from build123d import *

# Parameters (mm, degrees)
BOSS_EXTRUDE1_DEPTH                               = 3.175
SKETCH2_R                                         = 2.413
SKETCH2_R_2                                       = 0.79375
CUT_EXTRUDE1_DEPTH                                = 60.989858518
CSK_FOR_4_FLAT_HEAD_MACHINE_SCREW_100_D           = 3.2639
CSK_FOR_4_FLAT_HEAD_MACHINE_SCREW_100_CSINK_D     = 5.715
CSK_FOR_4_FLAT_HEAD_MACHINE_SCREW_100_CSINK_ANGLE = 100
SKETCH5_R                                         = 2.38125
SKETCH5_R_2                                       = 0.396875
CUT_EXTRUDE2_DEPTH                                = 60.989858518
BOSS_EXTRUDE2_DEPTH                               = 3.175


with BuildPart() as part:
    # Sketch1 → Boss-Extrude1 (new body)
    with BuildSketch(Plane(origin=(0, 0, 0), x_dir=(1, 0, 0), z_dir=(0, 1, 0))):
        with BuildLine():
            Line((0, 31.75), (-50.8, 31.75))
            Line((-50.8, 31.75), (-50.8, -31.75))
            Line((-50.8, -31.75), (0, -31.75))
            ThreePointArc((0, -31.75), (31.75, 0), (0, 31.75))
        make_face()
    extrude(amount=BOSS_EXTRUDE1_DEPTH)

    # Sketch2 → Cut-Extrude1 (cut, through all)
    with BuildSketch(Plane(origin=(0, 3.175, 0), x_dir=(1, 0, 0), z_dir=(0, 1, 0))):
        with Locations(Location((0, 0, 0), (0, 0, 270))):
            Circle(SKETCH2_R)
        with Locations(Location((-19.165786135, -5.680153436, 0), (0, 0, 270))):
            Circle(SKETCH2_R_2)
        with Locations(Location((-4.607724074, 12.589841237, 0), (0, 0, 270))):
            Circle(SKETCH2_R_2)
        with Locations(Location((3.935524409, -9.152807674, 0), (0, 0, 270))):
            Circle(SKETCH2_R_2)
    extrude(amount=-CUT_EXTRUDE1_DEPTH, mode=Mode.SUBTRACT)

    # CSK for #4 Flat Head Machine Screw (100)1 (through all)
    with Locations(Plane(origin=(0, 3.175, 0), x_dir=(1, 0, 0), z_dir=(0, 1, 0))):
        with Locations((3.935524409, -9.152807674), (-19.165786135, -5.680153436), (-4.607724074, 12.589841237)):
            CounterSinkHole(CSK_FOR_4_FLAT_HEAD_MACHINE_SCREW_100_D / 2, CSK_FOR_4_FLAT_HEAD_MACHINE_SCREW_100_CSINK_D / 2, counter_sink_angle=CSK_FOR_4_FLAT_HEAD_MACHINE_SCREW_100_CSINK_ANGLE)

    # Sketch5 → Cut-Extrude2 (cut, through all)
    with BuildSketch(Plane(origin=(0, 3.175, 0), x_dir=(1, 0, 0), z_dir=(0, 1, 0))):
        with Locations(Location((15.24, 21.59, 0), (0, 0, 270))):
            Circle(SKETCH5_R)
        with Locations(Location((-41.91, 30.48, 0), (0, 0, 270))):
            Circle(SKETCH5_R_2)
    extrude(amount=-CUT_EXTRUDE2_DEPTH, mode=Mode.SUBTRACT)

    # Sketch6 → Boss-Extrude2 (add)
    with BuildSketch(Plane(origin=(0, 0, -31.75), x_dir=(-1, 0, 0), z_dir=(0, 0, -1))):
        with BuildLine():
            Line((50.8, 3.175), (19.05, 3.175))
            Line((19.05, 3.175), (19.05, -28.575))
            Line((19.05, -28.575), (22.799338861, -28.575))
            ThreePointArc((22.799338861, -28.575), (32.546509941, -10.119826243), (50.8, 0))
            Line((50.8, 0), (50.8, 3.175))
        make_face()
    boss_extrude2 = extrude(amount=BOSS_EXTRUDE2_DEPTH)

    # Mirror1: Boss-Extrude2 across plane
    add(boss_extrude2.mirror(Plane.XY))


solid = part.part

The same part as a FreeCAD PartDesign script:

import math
import FreeCAD as App
import Part
import Sketcher
Q = App.Units.Quantity

doc = App.newDocument("Part")
body = doc.addObject("PartDesign::Body", "Body")

sketch1 = body.newObject("Sketcher::SketchObject", "Sketch")
sketch1.AttachmentSupport = (doc.getObject("XZ_Plane"), [""])
sketch1.MapMode = "FlatFace"
sketch1.addGeometry([
    Part.LineSegment(App.Vector(0, -31.75, 0), App.Vector(-50.8, -31.75, 0)),
    Part.LineSegment(App.Vector(-50.8, -31.75, 0), App.Vector(-50.8, 31.75, 0)),
    Part.LineSegment(App.Vector(-50.8, 31.75, 0), App.Vector(0, 31.75, 0)),
    Part.ArcOfCircle(Part.Circle(App.Vector(0, 0, 0), App.Vector(0, 0, 1), 31.75), math.radians(-90), math.radians(90)),
], False)
sketch1.addConstraint([
    Sketcher.Constraint("Coincident", 0, 2, 1, 1),
    Sketcher.Constraint("Coincident", 1, 2, 2, 1),
    Sketcher.Constraint("Tangent", 2, 2, 3, 2),
    Sketcher.Constraint("Tangent", 3, 1, 0, 1),
    Sketcher.Constraint("Horizontal", 0),
    Sketcher.Constraint("Vertical", 1),
    Sketcher.Constraint("Horizontal", 2),
    Sketcher.Constraint("Coincident", 3, 3, -1, 1),
    Sketcher.Constraint("DistanceX", 0, 2, 0, 1, Q("2 in")),
    Sketcher.Constraint("Radius", 3, Q("1.25 in")),
])
pad1 = body.newObject("PartDesign::Pad", "Pad")
pad1.Profile = sketch1
pad1.Length = Q("0.125 in")
pad1.Reversed = True

sketch2 = body.newObject("Sketcher::SketchObject", "Sketch001")
sketch2.AttachmentSupport = (doc.getObject("XZ_Plane"), [""])
sketch2.MapMode = "FlatFace"
sketch2.AttachmentOffset = App.Placement(App.Vector(0, 0, -0.125 * 25.4), App.Rotation())
sketch2.addGeometry([
    Part.Circle(App.Vector(0, 0, 0), App.Vector(0, 0, 1), 2.413),
    Part.Circle(App.Vector(-19.165786, 5.680153, 0), App.Vector(0, 0, 1), 0.79375),
    Part.Circle(App.Vector(-4.607724, -12.589841, 0), App.Vector(0, 0, 1), 0.79375),
    Part.Circle(App.Vector(3.935524, 9.152808, 0), App.Vector(0, 0, 1), 0.79375),
], False)
sketch2.addConstraint([
    Sketcher.Constraint("Coincident", 0, 3, -1, 1),
    Sketcher.Constraint("Equal", 1, 2),
    Sketcher.Constraint("Equal", 2, 3),
    Sketcher.Constraint("Diameter", 0, Q("0.19 in")),
    Sketcher.Constraint("Diameter", 1, Q("0.0625 in")),
    Sketcher.Constraint("DistanceY", 2, 3, -1, 1, 12.589841),
    Sketcher.Constraint("DistanceX", 1, 3, 3, 3, 23.101311),
    Sketcher.Constraint("DistanceX", 2, 3, 3, 3, 8.543248),
    Sketcher.Constraint("DistanceY", 2, 3, 3, 3, 21.742649),
    Sketcher.Constraint("DistanceX", 1, 3, -1, 1, 19.165786),
    Sketcher.Constraint("DistanceY", -1, 1, 1, 3, 5.680153),
])
pocket1 = body.newObject("PartDesign::Pocket", "Pocket")
pocket1.Profile = sketch2
pocket1.Type = "ThroughAll"
pocket1.Reversed = True

sketch3 = body.newObject("Sketcher::SketchObject", "Sketch002")
sketch3.AttachmentSupport = (doc.getObject("XZ_Plane"), [""])
sketch3.MapMode = "FlatFace"
sketch3.AttachmentOffset = App.Placement(App.Vector(0, 0, -0.125 * 25.4), App.Rotation())
sketch3.addGeometry([
    Part.Circle(App.Vector(3.935524, 9.152808, 0), App.Vector(0, 0, 1), 1.63195),
    Part.Circle(App.Vector(-19.165786, 5.680153, 0), App.Vector(0, 0, 1), 1.63195),
    Part.Circle(App.Vector(-4.607724, -12.589841, 0), App.Vector(0, 0, 1), 1.63195),
], False)
sketch3.addConstraint([
    Sketcher.Constraint("Equal", 0, 1),
    Sketcher.Constraint("Equal", 1, 2),
    Sketcher.Constraint("Diameter", 0, Q("0.1285 in")),
    Sketcher.Constraint("DistanceY", 2, 3, -1, 1, 12.589841),
    Sketcher.Constraint("DistanceX", 1, 3, 0, 3, 23.101311),
    Sketcher.Constraint("DistanceX", 2, 3, 0, 3, 8.543248),
    Sketcher.Constraint("DistanceY", 2, 3, 0, 3, 21.742649),
    Sketcher.Constraint("DistanceX", -1, 1, 0, 3, 3.935524),
    Sketcher.Constraint("DistanceY", -1, 1, 1, 3, 5.680153),
])
doc.recompute()
hole = body.newObject("PartDesign::Hole", "Hole")
hole.Profile = sketch3
hole.ThreadType = "None"
hole.Diameter = Q("0.1285 in")
hole.DepthType = "ThroughAll"
hole.HoleCutType = "Countersink"
hole.HoleCutDiameter = Q("0.225 in")
hole.HoleCutCountersinkAngle = 100
hole.Reversed = True

sketch4 = body.newObject("Sketcher::SketchObject", "Sketch003")
sketch4.AttachmentSupport = (doc.getObject("XZ_Plane"), [""])
sketch4.MapMode = "FlatFace"
sketch4.AttachmentOffset = App.Placement(App.Vector(0, 0, -0.125 * 25.4), App.Rotation())
sketch4.addGeometry([
    Part.Circle(App.Vector(15.24, -21.59, 0), App.Vector(0, 0, 1), 2.38125),
    Part.Circle(App.Vector(-41.91, -30.48, 0), App.Vector(0, 0, 1), 0.396875),
], False)
sketch4.addConstraint([
    Sketcher.Constraint("Diameter", 0, Q("0.1875 in")),
    Sketcher.Constraint("Diameter", 1, Q("0.03125 in")),
    Sketcher.Constraint("DistanceX", -1, 1, 0, 3, Q("0.6 in")),
    Sketcher.Constraint("DistanceY", 1, 3, -1, 1, Q("1.2 in")),
    Sketcher.Constraint("DistanceY", 0, 3, -1, 1, Q("0.85 in")),
    Sketcher.Constraint("DistanceX", 1, 3, -1, 1, Q("1.65 in")),
])
pocket2 = body.newObject("PartDesign::Pocket", "Pocket001")
pocket2.Profile = sketch4
pocket2.Type = "ThroughAll"
pocket2.Reversed = True

sketch5 = body.newObject("Sketcher::SketchObject", "Sketch004")
sketch5.AttachmentSupport = (doc.getObject("XY_Plane"), [""])
sketch5.MapMode = "FlatFace"
sketch5.AttachmentOffset = App.Placement(App.Vector(0, 0, -1.25 * 25.4), App.Rotation())
sketch5.addGeometry([
    Part.LineSegment(App.Vector(-50.8, 3.175, 0), App.Vector(-19.05, 3.175, 0)),
    Part.LineSegment(App.Vector(-19.05, 3.175, 0), App.Vector(-19.05, -28.575, 0)),
    Part.LineSegment(App.Vector(-19.05, -28.575, 0), App.Vector(-22.799339, -28.575, 0)),
    Part.ArcOfCircle(Part.Circle(App.Vector(-58.670856, -35.71909, 0), App.Vector(0, 0, 1), 36.576), math.radians(11.263523), math.radians(77.573219)),
    Part.LineSegment(App.Vector(-50.8, 0, 0), App.Vector(-50.8, 3.175, 0)),
], False)
sketch5.addConstraint([
    Sketcher.Constraint("Coincident", 0, 2, 1, 1),
    Sketcher.Constraint("Coincident", 1, 2, 2, 1),
    Sketcher.Constraint("Coincident", 2, 2, 3, 1),
    Sketcher.Constraint("Coincident", 3, 2, 4, 1),
    Sketcher.Constraint("Coincident", 4, 2, 0, 1),
    Sketcher.Constraint("Horizontal", 0),
    Sketcher.Constraint("Vertical", 1),
    Sketcher.Constraint("Horizontal", 2),
    Sketcher.Constraint("Vertical", 4),
    Sketcher.Constraint("PointOnObject", 3, 2, -1),
    Sketcher.Constraint("Equal", 0, 1),
    Sketcher.Constraint("Radius", 3, Q("1.44 in")),
    Sketcher.Constraint("DistanceX", 3, 2, -1, 1, Q("2 in")),
    Sketcher.Constraint("DistanceX", 0, 1, 0, 2, Q("1.25 in")),
    Sketcher.Constraint("DistanceY", 4, 1, 4, 2, Q("0.125 in")),
    Sketcher.Constraint("DistanceX", 2, 2, 2, 1, 3.749339),
])
pad2 = body.newObject("PartDesign::Pad", "Pad001")
pad2.Profile = sketch5
pad2.Length = Q("0.125 in")
pad2.Reversed = True
doc.recompute()

mirrored = body.newObject("PartDesign::Mirrored", "Mirrored")
mirrored.Originals = [pad2]
mirrored.MirrorPlane = (doc.getObject("XY_Plane"), [""])
body.Tip = mirrored

doc.recompute()
